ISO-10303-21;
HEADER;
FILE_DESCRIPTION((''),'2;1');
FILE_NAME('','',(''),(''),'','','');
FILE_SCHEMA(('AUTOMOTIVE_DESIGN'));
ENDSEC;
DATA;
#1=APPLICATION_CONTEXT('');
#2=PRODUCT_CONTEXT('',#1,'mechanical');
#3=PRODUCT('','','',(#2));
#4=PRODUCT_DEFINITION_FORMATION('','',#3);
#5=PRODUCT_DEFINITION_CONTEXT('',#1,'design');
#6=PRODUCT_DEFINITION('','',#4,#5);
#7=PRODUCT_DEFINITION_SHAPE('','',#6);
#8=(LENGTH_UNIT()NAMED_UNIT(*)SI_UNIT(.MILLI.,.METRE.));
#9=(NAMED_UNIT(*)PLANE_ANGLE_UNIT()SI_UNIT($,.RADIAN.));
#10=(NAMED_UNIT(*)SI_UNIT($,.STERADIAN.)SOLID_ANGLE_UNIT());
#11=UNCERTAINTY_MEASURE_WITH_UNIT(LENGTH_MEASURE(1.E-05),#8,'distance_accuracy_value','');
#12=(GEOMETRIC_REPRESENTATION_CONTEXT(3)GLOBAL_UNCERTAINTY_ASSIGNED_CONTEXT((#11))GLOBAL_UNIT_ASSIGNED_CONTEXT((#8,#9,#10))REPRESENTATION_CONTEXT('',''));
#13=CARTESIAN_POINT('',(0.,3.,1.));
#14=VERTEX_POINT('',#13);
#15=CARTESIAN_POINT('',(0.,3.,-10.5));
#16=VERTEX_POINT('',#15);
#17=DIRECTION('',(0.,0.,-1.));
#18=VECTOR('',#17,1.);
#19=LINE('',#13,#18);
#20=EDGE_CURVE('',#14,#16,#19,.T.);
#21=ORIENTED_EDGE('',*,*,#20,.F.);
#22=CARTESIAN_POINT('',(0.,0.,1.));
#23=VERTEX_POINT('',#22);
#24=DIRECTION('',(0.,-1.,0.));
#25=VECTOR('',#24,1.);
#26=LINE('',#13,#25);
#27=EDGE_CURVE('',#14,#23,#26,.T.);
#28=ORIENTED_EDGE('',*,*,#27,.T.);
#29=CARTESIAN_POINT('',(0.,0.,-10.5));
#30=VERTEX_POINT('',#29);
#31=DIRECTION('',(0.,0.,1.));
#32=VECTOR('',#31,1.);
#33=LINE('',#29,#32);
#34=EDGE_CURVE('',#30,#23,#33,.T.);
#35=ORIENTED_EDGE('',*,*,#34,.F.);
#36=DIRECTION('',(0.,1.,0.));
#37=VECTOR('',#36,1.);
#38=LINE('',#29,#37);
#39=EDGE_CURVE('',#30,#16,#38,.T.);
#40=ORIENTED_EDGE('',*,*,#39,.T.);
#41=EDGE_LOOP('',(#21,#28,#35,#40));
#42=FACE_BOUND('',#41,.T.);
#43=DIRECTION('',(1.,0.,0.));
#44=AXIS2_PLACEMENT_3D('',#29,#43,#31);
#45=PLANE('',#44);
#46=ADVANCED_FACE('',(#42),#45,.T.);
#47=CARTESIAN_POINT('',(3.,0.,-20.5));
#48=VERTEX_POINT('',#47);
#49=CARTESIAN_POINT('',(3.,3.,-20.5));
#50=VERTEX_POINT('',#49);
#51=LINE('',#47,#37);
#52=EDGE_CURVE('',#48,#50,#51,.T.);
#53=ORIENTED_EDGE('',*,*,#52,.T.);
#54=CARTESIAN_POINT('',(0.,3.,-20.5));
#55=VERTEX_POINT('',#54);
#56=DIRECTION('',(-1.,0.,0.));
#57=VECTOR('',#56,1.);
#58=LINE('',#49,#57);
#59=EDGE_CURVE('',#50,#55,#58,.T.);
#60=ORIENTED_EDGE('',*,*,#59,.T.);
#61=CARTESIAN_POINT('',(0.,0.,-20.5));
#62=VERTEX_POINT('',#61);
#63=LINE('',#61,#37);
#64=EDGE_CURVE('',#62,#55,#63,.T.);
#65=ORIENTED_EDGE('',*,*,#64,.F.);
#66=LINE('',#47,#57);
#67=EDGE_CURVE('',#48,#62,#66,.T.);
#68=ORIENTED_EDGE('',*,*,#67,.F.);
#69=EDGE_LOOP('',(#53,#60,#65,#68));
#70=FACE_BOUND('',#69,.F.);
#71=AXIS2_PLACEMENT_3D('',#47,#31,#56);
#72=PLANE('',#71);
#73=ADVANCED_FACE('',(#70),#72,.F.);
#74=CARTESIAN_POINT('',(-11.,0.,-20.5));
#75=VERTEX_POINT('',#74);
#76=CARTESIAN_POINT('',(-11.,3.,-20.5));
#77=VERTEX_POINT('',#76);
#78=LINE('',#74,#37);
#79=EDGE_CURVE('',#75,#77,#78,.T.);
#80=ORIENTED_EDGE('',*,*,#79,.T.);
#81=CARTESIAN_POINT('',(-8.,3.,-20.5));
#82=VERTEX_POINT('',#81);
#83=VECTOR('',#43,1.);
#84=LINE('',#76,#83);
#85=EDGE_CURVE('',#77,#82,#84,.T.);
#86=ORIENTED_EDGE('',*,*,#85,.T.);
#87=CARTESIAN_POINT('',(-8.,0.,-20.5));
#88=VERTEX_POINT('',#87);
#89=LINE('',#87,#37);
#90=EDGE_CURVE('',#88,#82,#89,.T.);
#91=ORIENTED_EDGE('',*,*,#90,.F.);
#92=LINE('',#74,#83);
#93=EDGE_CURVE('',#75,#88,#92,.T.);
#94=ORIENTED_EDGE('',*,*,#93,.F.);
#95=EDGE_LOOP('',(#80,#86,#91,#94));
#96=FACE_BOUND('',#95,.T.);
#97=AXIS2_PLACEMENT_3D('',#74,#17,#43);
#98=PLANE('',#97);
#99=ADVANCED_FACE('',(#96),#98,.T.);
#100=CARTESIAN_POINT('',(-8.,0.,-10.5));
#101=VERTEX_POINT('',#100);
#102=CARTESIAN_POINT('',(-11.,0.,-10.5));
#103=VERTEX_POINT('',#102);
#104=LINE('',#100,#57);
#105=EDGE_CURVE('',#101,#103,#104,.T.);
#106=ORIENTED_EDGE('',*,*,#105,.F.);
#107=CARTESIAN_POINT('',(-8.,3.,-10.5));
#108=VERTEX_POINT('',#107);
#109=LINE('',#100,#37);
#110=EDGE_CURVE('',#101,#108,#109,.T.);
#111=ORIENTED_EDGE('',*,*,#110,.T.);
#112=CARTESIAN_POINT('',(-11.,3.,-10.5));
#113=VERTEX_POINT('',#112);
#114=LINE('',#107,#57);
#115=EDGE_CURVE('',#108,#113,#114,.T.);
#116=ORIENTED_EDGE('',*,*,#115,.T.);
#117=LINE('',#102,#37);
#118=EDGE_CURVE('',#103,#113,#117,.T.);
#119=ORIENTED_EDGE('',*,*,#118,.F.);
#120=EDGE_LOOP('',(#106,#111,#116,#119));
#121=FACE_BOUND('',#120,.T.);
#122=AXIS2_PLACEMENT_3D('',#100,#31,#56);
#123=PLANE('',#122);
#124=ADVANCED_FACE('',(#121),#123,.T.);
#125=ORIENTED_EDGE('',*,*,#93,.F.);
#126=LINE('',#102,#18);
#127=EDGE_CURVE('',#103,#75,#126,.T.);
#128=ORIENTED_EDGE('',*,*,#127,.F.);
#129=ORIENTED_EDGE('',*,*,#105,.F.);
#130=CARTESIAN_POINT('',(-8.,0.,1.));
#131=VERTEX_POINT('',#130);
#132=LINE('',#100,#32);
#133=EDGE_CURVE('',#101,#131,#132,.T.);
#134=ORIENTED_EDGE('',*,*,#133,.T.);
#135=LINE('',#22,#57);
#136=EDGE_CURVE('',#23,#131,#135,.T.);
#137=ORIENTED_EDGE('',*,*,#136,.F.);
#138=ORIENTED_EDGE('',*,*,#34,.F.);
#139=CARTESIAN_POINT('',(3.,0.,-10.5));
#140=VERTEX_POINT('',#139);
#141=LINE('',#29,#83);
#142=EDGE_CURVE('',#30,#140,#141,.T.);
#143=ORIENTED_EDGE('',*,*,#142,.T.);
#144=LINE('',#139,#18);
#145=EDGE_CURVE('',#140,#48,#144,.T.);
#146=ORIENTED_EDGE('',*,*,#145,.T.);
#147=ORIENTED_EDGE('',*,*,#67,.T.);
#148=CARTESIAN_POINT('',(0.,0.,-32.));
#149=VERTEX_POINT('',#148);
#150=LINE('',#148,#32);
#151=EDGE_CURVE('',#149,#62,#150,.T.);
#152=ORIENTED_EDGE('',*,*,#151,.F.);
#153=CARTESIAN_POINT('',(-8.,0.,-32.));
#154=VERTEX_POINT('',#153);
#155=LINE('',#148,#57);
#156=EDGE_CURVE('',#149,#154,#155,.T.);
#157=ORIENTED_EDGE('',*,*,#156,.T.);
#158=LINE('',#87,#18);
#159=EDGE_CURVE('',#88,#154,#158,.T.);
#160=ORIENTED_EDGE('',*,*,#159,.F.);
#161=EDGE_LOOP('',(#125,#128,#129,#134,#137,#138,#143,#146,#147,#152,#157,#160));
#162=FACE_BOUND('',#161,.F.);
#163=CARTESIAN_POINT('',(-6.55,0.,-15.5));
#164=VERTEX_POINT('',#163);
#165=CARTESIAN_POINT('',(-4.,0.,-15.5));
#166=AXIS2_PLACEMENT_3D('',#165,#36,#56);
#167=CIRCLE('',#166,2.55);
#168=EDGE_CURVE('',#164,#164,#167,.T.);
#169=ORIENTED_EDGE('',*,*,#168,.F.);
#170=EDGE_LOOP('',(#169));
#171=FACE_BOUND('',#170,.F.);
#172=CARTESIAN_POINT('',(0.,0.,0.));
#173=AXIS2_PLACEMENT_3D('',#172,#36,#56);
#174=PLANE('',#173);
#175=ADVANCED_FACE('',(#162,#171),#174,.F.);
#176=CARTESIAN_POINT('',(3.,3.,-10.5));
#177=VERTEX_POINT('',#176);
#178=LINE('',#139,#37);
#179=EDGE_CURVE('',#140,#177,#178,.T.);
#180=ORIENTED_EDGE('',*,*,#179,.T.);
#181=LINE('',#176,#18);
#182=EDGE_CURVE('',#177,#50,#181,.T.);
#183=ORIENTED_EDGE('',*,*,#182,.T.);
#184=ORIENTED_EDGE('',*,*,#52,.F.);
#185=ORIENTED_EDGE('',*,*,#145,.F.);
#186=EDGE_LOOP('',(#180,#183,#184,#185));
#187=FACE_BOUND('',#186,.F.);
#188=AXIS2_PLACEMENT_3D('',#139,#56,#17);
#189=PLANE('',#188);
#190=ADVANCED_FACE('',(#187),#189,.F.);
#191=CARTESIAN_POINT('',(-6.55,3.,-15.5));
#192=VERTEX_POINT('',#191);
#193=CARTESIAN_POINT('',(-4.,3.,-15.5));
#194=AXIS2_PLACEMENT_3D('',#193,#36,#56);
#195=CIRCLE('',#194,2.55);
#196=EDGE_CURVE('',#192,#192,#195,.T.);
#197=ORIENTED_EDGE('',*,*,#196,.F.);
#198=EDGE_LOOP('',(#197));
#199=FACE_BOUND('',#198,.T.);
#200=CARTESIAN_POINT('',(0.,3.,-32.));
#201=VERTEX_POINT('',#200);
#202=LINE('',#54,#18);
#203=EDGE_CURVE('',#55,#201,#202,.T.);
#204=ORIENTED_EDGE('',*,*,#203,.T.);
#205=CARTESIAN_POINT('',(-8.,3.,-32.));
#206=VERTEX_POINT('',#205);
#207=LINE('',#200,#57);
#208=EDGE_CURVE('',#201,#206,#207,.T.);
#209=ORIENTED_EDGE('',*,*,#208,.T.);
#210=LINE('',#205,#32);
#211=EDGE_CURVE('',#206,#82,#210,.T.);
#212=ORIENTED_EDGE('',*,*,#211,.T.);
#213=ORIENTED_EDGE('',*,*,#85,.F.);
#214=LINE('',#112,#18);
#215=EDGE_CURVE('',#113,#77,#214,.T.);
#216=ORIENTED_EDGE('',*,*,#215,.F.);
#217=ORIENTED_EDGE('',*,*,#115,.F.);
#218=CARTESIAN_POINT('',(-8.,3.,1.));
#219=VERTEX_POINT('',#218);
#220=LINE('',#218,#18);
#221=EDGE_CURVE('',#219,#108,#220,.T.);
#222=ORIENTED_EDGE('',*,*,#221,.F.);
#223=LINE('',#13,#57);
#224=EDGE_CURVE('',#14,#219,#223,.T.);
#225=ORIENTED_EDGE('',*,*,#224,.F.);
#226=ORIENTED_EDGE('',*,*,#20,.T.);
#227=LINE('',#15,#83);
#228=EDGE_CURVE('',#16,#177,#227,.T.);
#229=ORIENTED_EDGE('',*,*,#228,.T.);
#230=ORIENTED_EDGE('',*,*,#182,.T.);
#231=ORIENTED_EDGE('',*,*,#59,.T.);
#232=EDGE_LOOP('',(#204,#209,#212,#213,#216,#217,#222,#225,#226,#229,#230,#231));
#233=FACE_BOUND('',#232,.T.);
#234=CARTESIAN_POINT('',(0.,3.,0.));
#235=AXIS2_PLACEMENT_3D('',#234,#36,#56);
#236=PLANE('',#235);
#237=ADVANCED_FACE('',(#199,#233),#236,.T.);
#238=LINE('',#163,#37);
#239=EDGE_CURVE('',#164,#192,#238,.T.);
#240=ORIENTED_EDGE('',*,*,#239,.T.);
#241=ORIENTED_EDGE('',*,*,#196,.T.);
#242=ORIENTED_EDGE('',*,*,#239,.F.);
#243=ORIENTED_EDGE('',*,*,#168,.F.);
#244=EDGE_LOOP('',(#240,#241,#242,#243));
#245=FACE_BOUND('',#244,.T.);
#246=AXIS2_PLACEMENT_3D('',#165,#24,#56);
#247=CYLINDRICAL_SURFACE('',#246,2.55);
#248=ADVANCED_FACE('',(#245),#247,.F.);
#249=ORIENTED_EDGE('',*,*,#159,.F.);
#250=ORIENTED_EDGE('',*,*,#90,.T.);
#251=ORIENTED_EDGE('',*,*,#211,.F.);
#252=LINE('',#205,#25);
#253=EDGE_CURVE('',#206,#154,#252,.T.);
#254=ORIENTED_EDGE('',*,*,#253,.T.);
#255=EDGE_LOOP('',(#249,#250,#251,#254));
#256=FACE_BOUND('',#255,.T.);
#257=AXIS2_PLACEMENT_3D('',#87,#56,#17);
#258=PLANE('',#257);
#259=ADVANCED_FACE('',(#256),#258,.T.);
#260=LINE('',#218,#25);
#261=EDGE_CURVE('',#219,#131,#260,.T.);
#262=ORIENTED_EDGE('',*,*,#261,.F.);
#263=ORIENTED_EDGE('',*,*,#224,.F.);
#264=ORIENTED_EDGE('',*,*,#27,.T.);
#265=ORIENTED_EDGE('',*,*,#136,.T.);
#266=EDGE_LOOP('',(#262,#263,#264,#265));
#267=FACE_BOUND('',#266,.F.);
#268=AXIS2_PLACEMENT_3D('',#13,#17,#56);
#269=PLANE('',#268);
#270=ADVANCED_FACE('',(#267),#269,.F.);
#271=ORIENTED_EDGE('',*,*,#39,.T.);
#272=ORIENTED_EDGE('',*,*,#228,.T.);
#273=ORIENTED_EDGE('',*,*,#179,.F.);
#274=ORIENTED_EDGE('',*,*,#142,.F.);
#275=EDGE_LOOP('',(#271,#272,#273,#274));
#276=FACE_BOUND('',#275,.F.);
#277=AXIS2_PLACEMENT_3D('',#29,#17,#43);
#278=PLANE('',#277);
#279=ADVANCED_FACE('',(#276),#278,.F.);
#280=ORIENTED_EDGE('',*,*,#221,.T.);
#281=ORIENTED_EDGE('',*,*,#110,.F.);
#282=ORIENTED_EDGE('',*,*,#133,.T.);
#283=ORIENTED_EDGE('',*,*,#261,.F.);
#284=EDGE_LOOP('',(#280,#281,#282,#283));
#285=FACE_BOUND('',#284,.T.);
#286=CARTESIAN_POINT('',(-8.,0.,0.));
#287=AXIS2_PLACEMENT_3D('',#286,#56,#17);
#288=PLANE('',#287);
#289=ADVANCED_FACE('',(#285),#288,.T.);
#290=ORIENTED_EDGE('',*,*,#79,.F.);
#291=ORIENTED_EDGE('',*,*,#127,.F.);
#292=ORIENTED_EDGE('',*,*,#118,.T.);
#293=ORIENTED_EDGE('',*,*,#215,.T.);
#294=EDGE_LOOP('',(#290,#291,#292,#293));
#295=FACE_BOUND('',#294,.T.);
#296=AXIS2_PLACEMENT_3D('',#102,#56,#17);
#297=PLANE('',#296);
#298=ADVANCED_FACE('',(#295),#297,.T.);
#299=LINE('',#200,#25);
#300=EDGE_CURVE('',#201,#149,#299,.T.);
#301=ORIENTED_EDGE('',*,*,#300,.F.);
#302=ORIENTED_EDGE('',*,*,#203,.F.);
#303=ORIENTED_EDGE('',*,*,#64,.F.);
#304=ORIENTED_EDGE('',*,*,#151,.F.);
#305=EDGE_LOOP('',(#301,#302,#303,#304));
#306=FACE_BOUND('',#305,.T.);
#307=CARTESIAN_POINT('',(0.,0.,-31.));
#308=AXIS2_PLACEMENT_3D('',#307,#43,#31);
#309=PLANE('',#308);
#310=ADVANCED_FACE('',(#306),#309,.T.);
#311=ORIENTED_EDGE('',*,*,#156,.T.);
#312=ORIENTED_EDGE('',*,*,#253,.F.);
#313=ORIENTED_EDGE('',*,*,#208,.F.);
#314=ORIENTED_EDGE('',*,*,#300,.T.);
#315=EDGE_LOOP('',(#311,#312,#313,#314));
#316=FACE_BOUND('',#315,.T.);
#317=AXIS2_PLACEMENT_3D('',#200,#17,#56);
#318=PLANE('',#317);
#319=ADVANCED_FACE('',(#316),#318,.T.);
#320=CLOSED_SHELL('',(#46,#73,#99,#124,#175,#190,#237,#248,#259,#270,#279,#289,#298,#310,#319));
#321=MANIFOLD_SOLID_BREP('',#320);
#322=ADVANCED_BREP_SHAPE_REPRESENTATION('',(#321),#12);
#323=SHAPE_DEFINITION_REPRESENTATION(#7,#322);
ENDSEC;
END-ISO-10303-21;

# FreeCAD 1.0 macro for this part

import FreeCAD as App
import Part
import Sketcher

V = App.Vector


def add_polygon(sketch, points):
    """Adds a closed chain of lines whose ends are joined by coincident constraints."""
    first, n = sketch.GeometryCount, len(points)
    for a, b in zip(points, points[1:] + points[:1]):
        sketch.addGeometry(Part.LineSegment(App.Vector(*a, 0), App.Vector(*b, 0)), False)
    for i in range(n):
        sketch.addConstraint(Sketcher.Constraint("Coincident", first + i, 2, first + (i + 1) % n, 1))

doc = App.newDocument("Part")
body = doc.addObject("PartDesign::Body", "Body")

# Sketch on XZ plane
sketch1 = body.newObject("Sketcher::SketchObject", "Sketch")
sketch1.AttachmentSupport = (doc.getObject("XZ_Plane"), [""])
sketch1.MapMode = "FlatFace"
add_polygon(sketch1, [(-8, 0), (0, 0), (0, -10.5), (3, -10.5), (3, -20.5), (0, -20.5), (0, -31), (-8, -31), (-8, -20.5), (-11, -20.5), (-11, -10.5), (-8, -10.5)])  # lines 0-11
sketch1.addGeometry(Part.Circle(V(-4, -15.5, 0), V(0, 0, 1), 2.55), False)  # 12
sketch1.addConstraint([
    Sketcher.Constraint("Horizontal", 0),
    Sketcher.Constraint("Vertical", 1),
    Sketcher.Constraint("Horizontal", 2),
    Sketcher.Constraint("Vertical", 3),
    Sketcher.Constraint("Horizontal", 4),
    Sketcher.Constraint("Vertical", 5),
    Sketcher.Constraint("Horizontal", 6),
    Sketcher.Constraint("Vertical", 7),
    Sketcher.Constraint("Horizontal", 8),
    Sketcher.Constraint("Vertical", 9),
    Sketcher.Constraint("Horizontal", 10),
    Sketcher.Constraint("Vertical", 11),
    Sketcher.Constraint("Coincident", 0, 2, -1, 1),
    Sketcher.Constraint("PointOnObject", 4, 2, -2),
    Sketcher.Constraint("Horizontal", 4, 2, 7, 2),
    Sketcher.Constraint("Horizontal", 2, 2, 9, 2),
    Sketcher.Constraint("Vertical", 7, 2, 10, 2),
    Sketcher.Constraint("Equal", 4, 8),
    Sketcher.Constraint("Equal", 1, 5),
    Sketcher.Constraint("Diameter", 12, 5.1),
    Sketcher.Constraint("DistanceX", 0, 1, 0, 2, 8.0),
    Sketcher.Constraint("DistanceX", 2, 1, 2, 2, 3.0),
    Sketcher.Constraint("DistanceY", 3, 2, 3, 1, 10.0),
    Sketcher.Constraint("DistanceY", 1, 2, 1, 1, 10.5),
    Sketcher.Constraint("DistanceX", 12, 3, -1, 1, 4.0),
    Sketcher.Constraint("DistanceY", 12, 3, 1, 2, 5.0),
])
pad1 = body.newObject("PartDesign::Pad", "Pad")
pad1.Profile = sketch1
pad1.Length = 3
pad1.Reversed = True

# Sketch on XZ plane
sketch2 = body.newObject("Sketcher::SketchObject", "Sketch001")
sketch2.AttachmentSupport = (doc.getObject("XZ_Plane"), [""])
sketch2.MapMode = "FlatFace"
sketch2.AttachmentOffset = App.Placement(V(0, 0, -3), App.Rotation())
add_polygon(sketch2, [(0, 1), (0, 0), (-8, 0), (-8, 1)])  # lines 0-3
add_polygon(sketch2, [(-8, -31), (0, -31), (0, -32), (-8, -32)])  # lines 4-7
sketch2.addConstraint([
    Sketcher.Constraint("Vertical", 0),
    Sketcher.Constraint("Horizontal", 1),
    Sketcher.Constraint("Vertical", 2),
    Sketcher.Constraint("Horizontal", 3),
    Sketcher.Constraint("Horizontal", 4),
    Sketcher.Constraint("Vertical", 5),
    Sketcher.Constraint("Horizontal", 6),
    Sketcher.Constraint("Vertical", 7),
    Sketcher.Constraint("Coincident", 0, 2, -1, 1),
    Sketcher.Constraint("PointOnObject", 4, 2, -2),
    Sketcher.Constraint("Vertical", 2, 2, 6, 2),
    Sketcher.Constraint("Equal", 2, 5),
    Sketcher.Constraint("DistanceY", 0, 2, 0, 1, 1.0),
    Sketcher.Constraint("DistanceX", 1, 2, 1, 1, 8.0),
    Sketcher.Constraint("DistanceY", 4, 2, -1, 1, 31.0),
])
pad2 = body.newObject("PartDesign::Pad", "Pad001")
pad2.Profile = sketch2
pad2.Length = 3

doc.recompute()
